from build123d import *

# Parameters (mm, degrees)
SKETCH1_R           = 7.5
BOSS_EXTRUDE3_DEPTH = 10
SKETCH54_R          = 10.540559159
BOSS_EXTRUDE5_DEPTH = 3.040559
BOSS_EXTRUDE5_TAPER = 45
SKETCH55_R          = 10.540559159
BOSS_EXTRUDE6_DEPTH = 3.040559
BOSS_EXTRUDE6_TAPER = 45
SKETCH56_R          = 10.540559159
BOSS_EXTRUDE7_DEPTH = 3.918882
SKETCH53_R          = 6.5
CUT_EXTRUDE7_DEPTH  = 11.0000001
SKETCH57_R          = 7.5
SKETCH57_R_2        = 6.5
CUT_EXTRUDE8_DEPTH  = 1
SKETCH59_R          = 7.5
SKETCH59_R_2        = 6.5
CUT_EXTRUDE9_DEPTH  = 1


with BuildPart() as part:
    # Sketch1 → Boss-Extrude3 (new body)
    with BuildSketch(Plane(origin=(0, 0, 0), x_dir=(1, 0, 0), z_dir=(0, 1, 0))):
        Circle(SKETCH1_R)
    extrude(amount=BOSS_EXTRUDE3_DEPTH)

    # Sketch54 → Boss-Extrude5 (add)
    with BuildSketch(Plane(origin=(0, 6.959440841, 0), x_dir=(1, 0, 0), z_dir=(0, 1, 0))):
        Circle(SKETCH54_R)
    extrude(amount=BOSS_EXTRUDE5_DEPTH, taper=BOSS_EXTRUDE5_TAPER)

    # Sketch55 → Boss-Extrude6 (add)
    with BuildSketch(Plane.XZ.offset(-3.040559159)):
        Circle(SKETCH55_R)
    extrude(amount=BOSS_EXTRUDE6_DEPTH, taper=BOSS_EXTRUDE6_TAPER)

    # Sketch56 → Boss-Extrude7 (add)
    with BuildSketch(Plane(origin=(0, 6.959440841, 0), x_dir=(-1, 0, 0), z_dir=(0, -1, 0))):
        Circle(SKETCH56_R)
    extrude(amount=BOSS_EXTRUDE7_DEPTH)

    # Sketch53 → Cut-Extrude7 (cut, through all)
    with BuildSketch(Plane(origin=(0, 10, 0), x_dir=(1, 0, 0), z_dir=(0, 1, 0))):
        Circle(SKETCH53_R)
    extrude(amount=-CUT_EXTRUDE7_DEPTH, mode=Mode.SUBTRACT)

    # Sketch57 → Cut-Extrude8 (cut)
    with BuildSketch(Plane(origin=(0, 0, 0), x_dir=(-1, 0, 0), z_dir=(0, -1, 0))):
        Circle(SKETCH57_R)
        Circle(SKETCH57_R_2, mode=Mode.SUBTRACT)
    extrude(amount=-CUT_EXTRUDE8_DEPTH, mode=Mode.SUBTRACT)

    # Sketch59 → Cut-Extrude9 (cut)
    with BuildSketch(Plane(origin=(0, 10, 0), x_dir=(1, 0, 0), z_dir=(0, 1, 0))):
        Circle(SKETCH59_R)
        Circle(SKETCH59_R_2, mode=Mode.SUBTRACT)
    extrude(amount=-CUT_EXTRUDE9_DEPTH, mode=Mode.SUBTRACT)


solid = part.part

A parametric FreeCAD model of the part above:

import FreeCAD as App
import Part
import Sketcher

V = App.Vector

doc = App.newDocument("Part")
body = doc.addObject("PartDesign::Body", "Body")

# Sketch on XZ plane
sketch1 = doc.addObject("Sketcher::SketchObject", "Sketch")
body.addObject(sketch1)
sketch1.AttachmentSupport = (doc.XZ_Plane, [""])
sketch1.MapMode = "FlatFace"
sketch1.addGeometry(Part.Circle(V(0, 0, 0), V(0, 0, 1), 7.5), False)
sketch1.addConstraint(Sketcher.Constraint("Coincident", 0, 3, -1, 1))
sketch1.addConstraint(Sketcher.Constraint("Diameter", 0, 15.0))
pad1 = doc.addObject("PartDesign::Pad", "Pad")
body.addObject(pad1)
pad1.Profile = sketch1
pad1.Length = 10
pad1.Reversed = True

# Sketch on XZ plane
sketch2 = doc.addObject("Sketcher::SketchObject", "Sketch001")
body.addObject(sketch2)
sketch2.AttachmentSupport = (doc.XZ_Plane, [""])
sketch2.MapMode = "FlatFace"
sketch2.AttachmentOffset = App.Placement(V(0, 0, -6.959441), App.Rotation())
sketch2.addGeometry(Part.Circle(V(0, 0, 0), V(0, 0, 1), 10.540559), False)
sketch2.addConstraint(Sketcher.Constraint("Coincident", 0, 3, -1, 1))
sketch2.addConstraint(Sketcher.Constraint("Diameter", 0, 21.081118))
pad2 = doc.addObject("PartDesign::Pad", "Pad001")
body.addObject(pad2)
pad2.Profile = sketch2
pad2.Length = 3.040559
pad2.Reversed = True
pad2.TaperAngle = -45

# Sketch on XZ plane
sketch3 = doc.addObject("Sketcher::SketchObject", "Sketch002")
body.addObject(sketch3)
sketch3.AttachmentSupport = (doc.XZ_Plane, [""])
sketch3.MapMode = "FlatFace"
sketch3.AttachmentOffset = App.Placement(V(0, 0, -3.040559), App.Rotation())
sketch3.addGeometry(Part.Circle(V(0, 0, 0), V(0, 0, 1), 10.540559), False)
sketch3.addConstraint(Sketcher.Constraint("Coincident", 0, 3, -1, 1))
sketch3.addConstraint(Sketcher.Constraint("Diameter", 0, 21.081118))
pad3 = doc.addObject("PartDesign::Pad", "Pad002")
body.addObject(pad3)
pad3.Profile = sketch3
pad3.Length = 3.040559
pad3.TaperAngle = -45

# Sketch on XZ plane
sketch4 = doc.addObject("Sketcher::SketchObject", "Sketch003")
body.addObject(sketch4)
sketch4.AttachmentSupport = (doc.XZ_Plane, [""])
sketch4.MapMode = "FlatFace"
sketch4.AttachmentOffset = App.Placement(V(0, 0, -6.959441), App.Rotation())
sketch4.addGeometry(Part.Circle(V(0, 0, 0), V(0, 0, 1), 10.540559), False)
sketch4.addConstraint(Sketcher.Constraint("Coincident", 0, 3, -1, 1))
sketch4.addConstraint(Sketcher.Constraint("Diameter", 0, 21.081118))
pad4 = doc.addObject("PartDesign::Pad", "Pad003")
body.addObject(pad4)
pad4.Profile = sketch4
pad4.Length = 3.918882

# Sketch on XZ plane
sketch5 = doc.addObject("Sketcher::SketchObject", "Sketch004")
body.addObject(sketch5)
sketch5.AttachmentSupport = (doc.XZ_Plane, [""])
sketch5.MapMode = "FlatFace"
sketch5.AttachmentOffset = App.Placement(V(0, 0, -10), App.Rotation())
sketch5.addGeometry(Part.Circle(V(0, 0, 0), V(0, 0, 1), 6.5), False)
sketch5.addConstraint(Sketcher.Constraint("Coincident", 0, 3, -1, 1))
sketch5.addConstraint(Sketcher.Constraint("Diameter", 0, 13.0))
pocket1 = doc.addObject("PartDesign::Pocket", "Pocket")
body.addObject(pocket1)
pocket1.Profile = sketch5
pocket1.Type = "ThroughAll"
pocket1.Reversed = True

# Sketch on XZ plane
sketch6 = doc.addObject("Sketcher::SketchObject", "Sketch005")
body.addObject(sketch6)
sketch6.AttachmentSupport = (doc.XZ_Plane, [""])
sketch6.MapMode = "FlatFace"
sketch6.addGeometry(Part.Circle(V(0, 0, 0), V(0, 0, 1), 7.5), False)
sketch6.addGeometry(Part.Circle(V(0, 0, 0), V(0, 0, 1), 6.5), False)
sketch6.addConstraint(Sketcher.Constraint("Coincident", 0, 3, -1, 1))
sketch6.addConstraint(Sketcher.Constraint("Coincident", 1, 3, -1, 1))
sketch6.addConstraint(Sketcher.Constraint("Diameter", 0, 15.0))
sketch6.addConstraint(Sketcher.Constraint("Diameter", 1, 13.0))
pocket2 = doc.addObject("PartDesign::Pocket", "Pocket001")
body.addObject(pocket2)
pocket2.Profile = sketch6
pocket2.Length = 1

# Sketch on XZ plane
sketch7 = doc.addObject("Sketcher::SketchObject", "Sketch006")
body.addObject(sketch7)
sketch7.AttachmentSupport = (doc.XZ_Plane, [""])
sketch7.MapMode = "FlatFace"
sketch7.AttachmentOffset = App.Placement(V(0, 0, -10), App.Rotation())
sketch7.addGeometry(Part.Circle(V(0, 0, 0), V(0, 0, 1), 7.5), False)
sketch7.addGeometry(Part.Circle(V(0, 0, 0), V(0, 0, 1), 6.5), False)
sketch7.addConstraint(Sketcher.Constraint("Coincident", 0, 3, -1, 1))
sketch7.addConstraint(Sketcher.Constraint("Coincident", 1, 3, -1, 1))
sketch7.addConstraint(Sketcher.Constraint("Diameter", 0, 15.0))
sketch7.addConstraint(Sketcher.Constraint("Diameter", 1, 13.0))
pocket3 = doc.addObject("PartDesign::Pocket", "Pocket002")
body.addObject(pocket3)
pocket3.Profile = sketch7
pocket3.Length = 1
pocket3.Reversed = True

doc.recompute()
